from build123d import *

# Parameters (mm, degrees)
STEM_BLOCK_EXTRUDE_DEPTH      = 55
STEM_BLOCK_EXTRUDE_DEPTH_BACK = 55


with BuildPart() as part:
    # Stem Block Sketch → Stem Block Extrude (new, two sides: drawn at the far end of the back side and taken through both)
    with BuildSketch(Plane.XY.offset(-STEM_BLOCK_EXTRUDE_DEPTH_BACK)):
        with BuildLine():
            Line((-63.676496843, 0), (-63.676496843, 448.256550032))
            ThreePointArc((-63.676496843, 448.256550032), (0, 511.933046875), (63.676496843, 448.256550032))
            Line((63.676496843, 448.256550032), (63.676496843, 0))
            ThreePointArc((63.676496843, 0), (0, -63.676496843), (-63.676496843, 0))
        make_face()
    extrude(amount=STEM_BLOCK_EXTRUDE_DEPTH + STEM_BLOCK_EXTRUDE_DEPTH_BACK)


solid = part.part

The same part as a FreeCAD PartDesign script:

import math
import FreeCAD as App
import Part
import Sketcher

doc = App.newDocument("Part")
body = doc.addObject("PartDesign::Body", "Body")

# Sketch on XY plane
sketch1 = body.newObject("Sketcher::SketchObject", "Sketch")
sketch1.AttachmentSupport = (doc.getObject("XY_Plane"), [""])
sketch1.MapMode = "FlatFace"
sketch1.addGeometry(Part.LineSegment(App.Vector(-64, 448, 0), App.Vector(-64, 0, 0)), False)
sketch1.addGeometry(Part.ArcOfCircle(Part.Circle(App.Vector(0, 0, 0), App.Vector(0, 0, 1), 64), math.radians(180), math.radians(360)), False)
sketch1.addGeometry(Part.LineSegment(App.Vector(64, 0, 0), App.Vector(64, 448, 0)), False)
sketch1.addGeometry(Part.ArcOfCircle(Part.Circle(App.Vector(0, 448, 0), App.Vector(0, 0, 1), 64), math.radians(0), math.radians(180)), False)
sketch1.addConstraint(Sketcher.Constraint("Tangent", 0, 2, 1, 1))
sketch1.addConstraint(Sketcher.Constraint("Tangent", 1, 2, 2, 1))
sketch1.addConstraint(Sketcher.Constraint("Tangent", 2, 2, 3, 1))
sketch1.addConstraint(Sketcher.Constraint("Tangent", 3, 2, 0, 1))
sketch1.addConstraint(Sketcher.Constraint("Vertical", 0))
sketch1.addConstraint(Sketcher.Constraint("Vertical", 2))
sketch1.addConstraint(Sketcher.Constraint("Coincident", 1, 3, -1, 1))
sketch1.addConstraint(Sketcher.Constraint("Radius", 1, 63.676497))
sketch1.addConstraint(Sketcher.Constraint("DistanceY", 0, 2, 0, 1, 448.25655))
pad1 = body.newObject("PartDesign::Pad", "Pad")
pad1.Profile = sketch1
pad1.Type = "TwoLengths"
pad1.Length = 55
pad1.Length2 = 55

doc.recompute()
